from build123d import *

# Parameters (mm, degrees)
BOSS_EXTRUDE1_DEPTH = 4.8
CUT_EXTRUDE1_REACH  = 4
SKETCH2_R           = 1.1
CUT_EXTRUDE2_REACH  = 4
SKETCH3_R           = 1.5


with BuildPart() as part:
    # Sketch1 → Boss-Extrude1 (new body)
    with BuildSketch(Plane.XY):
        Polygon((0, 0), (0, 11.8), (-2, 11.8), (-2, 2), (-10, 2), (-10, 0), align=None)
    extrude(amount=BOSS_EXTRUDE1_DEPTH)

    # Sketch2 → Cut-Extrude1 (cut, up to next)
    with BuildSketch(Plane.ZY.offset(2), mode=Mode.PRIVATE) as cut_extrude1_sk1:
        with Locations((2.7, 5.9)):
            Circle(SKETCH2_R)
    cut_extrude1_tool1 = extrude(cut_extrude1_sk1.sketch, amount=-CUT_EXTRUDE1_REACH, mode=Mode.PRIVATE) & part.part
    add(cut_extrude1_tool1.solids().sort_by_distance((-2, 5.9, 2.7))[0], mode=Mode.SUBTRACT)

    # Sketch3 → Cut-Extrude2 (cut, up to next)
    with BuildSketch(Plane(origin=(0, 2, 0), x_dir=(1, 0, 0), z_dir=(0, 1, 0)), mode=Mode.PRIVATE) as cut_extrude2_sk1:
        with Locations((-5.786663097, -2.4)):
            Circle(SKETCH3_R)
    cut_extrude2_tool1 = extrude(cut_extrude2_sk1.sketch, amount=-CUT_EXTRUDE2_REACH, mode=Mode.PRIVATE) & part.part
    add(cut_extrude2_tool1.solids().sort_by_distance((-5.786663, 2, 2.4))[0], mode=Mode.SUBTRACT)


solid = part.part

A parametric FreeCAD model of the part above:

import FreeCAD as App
import Part
import Sketcher

V = App.Vector
Q = App.Units.Quantity


def add_polygon(sketch, points):
    """Adds a closed chain of lines whose ends are joined by coincident constraints."""
    first, n = sketch.GeometryCount, len(points)
    for a, b in zip(points, points[1:] + points[:1]):
        sketch.addGeometry(Part.LineSegment(App.Vector(*a, 0), App.Vector(*b, 0)), False)
    for i in range(n):
        sketch.addConstraint(Sketcher.Constraint("Coincident", first + i, 2, first + (i + 1) % n, 1))

doc = App.newDocument("Part")
params = doc.addObject("Spreadsheet::Sheet", "Params")
for row, (alias, value) in enumerate([
    ("sketch1_width", "2 mm"),
    ("sketch1_width2", "8 mm"),
    ("sketch1_height", "11.8 mm"),
    ("pad1_length", "4.8 mm"),
    ("sketch2_diameter", "2.2 mm"),
    ("sketch3_diameter", "3 mm"),
], start=1):
    params.set(f"A{row}", alias)
    params.set(f"B{row}", "=" + value)
    params.setAlias(f"B{row}", alias)

body = doc.addObject("PartDesign::Body", "Body")

# Sketch on XY plane
sketch1 = body.newObject("Sketcher::SketchObject", "Sketch")
sketch1.AttachmentSupport = (doc.getObject("XY_Plane"), [""])
sketch1.MapMode = "FlatFace"
add_polygon(sketch1, [(0, 0), (0, 11.8), (-2, 11.8), (-2, 2), (-10, 2), (-10, 0)])  # lines 0-5
sketch1.addConstraint([
    Sketcher.Constraint("Vertical", 0),
    Sketcher.Constraint("Horizontal", 1),
    Sketcher.Constraint("Vertical", 2),
    Sketcher.Constraint("Horizontal", 3),
    Sketcher.Constraint("Vertical", 4),
    Sketcher.Constraint("Horizontal", 5),
    Sketcher.Constraint("Coincident", 5, 2, -1, 1),
    Sketcher.Constraint("Equal", 1, 4),
    Sketcher.Constraint("DistanceX", 1, 2, 1, 1, Q("2 mm")),
    Sketcher.Constraint("DistanceX", 3, 2, 3, 1, Q("8 mm")),
    Sketcher.Constraint("DistanceY", 0, 1, 0, 2, Q("11.8 mm")),
])
sketch1.setExpression("Constraints[14]", "Params.sketch1_width")
sketch1.setExpression("Constraints[15]", "Params.sketch1_width2")
sketch1.setExpression("Constraints[16]", "Params.sketch1_height")
pad1 = body.newObject("PartDesign::Pad", "Pad")
pad1.Profile = sketch1
pad1.setExpression("Length", "Params.pad1_length")

# Sketch on YZ plane
sketch2 = body.newObject("Sketcher::SketchObject", "Sketch001")
sketch2.AttachmentSupport = (doc.getObject("YZ_Plane"), [""])
sketch2.MapMode = "FlatFace"
sketch2.AttachmentOffset = App.Placement(V(0, 0, -2), App.Rotation())
sketch2.addGeometry(Part.Circle(V(5.9, 2.7, 0), V(0, 0, 1), 1.1), False)
sketch2.addConstraint([
    Sketcher.Constraint("Diameter", 0, Q("2.2 mm")),
    Sketcher.Constraint("DistanceX", -1, 1, 0, 3, Q("5.9 mm")),
    Sketcher.Constraint("DistanceY", -1, 1, 0, 3, Q("2.7 mm")),
])
sketch2.setExpression("Constraints[0]", "Params.sketch2_diameter")
pocket1 = body.newObject("PartDesign::Pocket", "Pocket")
pocket1.Profile = sketch2
pocket1.Type = "UpToFirst"
pocket1.Reversed = True

# Sketch on XZ plane
sketch3 = body.newObject("Sketcher::SketchObject", "Sketch002")
sketch3.AttachmentSupport = (doc.getObject("XZ_Plane"), [""])
sketch3.MapMode = "FlatFace"
sketch3.AttachmentOffset = App.Placement(V(0, 0, -2), App.Rotation())
sketch3.addGeometry(Part.Circle(V(-5.8, 2.4, 0), V(0, 0, 1), 1.5), False)
sketch3.addConstraint([
    Sketcher.Constraint("Diameter", 0, Q("3 mm")),
    Sketcher.Constraint("DistanceY", -1, 1, 0, 3, Q("2.4 mm")),
    Sketcher.Constraint("DistanceX", 0, 3, -1, 1, Q("5.786663 mm")),
])
sketch3.setExpression("Constraints[0]", "Params.sketch3_diameter")
pocket2 = body.newObject("PartDesign::Pocket", "Pocket001")
pocket2.Profile = sketch3
pocket2.Type = "UpToFirst"
pocket2.Reversed = True

doc.recompute()
